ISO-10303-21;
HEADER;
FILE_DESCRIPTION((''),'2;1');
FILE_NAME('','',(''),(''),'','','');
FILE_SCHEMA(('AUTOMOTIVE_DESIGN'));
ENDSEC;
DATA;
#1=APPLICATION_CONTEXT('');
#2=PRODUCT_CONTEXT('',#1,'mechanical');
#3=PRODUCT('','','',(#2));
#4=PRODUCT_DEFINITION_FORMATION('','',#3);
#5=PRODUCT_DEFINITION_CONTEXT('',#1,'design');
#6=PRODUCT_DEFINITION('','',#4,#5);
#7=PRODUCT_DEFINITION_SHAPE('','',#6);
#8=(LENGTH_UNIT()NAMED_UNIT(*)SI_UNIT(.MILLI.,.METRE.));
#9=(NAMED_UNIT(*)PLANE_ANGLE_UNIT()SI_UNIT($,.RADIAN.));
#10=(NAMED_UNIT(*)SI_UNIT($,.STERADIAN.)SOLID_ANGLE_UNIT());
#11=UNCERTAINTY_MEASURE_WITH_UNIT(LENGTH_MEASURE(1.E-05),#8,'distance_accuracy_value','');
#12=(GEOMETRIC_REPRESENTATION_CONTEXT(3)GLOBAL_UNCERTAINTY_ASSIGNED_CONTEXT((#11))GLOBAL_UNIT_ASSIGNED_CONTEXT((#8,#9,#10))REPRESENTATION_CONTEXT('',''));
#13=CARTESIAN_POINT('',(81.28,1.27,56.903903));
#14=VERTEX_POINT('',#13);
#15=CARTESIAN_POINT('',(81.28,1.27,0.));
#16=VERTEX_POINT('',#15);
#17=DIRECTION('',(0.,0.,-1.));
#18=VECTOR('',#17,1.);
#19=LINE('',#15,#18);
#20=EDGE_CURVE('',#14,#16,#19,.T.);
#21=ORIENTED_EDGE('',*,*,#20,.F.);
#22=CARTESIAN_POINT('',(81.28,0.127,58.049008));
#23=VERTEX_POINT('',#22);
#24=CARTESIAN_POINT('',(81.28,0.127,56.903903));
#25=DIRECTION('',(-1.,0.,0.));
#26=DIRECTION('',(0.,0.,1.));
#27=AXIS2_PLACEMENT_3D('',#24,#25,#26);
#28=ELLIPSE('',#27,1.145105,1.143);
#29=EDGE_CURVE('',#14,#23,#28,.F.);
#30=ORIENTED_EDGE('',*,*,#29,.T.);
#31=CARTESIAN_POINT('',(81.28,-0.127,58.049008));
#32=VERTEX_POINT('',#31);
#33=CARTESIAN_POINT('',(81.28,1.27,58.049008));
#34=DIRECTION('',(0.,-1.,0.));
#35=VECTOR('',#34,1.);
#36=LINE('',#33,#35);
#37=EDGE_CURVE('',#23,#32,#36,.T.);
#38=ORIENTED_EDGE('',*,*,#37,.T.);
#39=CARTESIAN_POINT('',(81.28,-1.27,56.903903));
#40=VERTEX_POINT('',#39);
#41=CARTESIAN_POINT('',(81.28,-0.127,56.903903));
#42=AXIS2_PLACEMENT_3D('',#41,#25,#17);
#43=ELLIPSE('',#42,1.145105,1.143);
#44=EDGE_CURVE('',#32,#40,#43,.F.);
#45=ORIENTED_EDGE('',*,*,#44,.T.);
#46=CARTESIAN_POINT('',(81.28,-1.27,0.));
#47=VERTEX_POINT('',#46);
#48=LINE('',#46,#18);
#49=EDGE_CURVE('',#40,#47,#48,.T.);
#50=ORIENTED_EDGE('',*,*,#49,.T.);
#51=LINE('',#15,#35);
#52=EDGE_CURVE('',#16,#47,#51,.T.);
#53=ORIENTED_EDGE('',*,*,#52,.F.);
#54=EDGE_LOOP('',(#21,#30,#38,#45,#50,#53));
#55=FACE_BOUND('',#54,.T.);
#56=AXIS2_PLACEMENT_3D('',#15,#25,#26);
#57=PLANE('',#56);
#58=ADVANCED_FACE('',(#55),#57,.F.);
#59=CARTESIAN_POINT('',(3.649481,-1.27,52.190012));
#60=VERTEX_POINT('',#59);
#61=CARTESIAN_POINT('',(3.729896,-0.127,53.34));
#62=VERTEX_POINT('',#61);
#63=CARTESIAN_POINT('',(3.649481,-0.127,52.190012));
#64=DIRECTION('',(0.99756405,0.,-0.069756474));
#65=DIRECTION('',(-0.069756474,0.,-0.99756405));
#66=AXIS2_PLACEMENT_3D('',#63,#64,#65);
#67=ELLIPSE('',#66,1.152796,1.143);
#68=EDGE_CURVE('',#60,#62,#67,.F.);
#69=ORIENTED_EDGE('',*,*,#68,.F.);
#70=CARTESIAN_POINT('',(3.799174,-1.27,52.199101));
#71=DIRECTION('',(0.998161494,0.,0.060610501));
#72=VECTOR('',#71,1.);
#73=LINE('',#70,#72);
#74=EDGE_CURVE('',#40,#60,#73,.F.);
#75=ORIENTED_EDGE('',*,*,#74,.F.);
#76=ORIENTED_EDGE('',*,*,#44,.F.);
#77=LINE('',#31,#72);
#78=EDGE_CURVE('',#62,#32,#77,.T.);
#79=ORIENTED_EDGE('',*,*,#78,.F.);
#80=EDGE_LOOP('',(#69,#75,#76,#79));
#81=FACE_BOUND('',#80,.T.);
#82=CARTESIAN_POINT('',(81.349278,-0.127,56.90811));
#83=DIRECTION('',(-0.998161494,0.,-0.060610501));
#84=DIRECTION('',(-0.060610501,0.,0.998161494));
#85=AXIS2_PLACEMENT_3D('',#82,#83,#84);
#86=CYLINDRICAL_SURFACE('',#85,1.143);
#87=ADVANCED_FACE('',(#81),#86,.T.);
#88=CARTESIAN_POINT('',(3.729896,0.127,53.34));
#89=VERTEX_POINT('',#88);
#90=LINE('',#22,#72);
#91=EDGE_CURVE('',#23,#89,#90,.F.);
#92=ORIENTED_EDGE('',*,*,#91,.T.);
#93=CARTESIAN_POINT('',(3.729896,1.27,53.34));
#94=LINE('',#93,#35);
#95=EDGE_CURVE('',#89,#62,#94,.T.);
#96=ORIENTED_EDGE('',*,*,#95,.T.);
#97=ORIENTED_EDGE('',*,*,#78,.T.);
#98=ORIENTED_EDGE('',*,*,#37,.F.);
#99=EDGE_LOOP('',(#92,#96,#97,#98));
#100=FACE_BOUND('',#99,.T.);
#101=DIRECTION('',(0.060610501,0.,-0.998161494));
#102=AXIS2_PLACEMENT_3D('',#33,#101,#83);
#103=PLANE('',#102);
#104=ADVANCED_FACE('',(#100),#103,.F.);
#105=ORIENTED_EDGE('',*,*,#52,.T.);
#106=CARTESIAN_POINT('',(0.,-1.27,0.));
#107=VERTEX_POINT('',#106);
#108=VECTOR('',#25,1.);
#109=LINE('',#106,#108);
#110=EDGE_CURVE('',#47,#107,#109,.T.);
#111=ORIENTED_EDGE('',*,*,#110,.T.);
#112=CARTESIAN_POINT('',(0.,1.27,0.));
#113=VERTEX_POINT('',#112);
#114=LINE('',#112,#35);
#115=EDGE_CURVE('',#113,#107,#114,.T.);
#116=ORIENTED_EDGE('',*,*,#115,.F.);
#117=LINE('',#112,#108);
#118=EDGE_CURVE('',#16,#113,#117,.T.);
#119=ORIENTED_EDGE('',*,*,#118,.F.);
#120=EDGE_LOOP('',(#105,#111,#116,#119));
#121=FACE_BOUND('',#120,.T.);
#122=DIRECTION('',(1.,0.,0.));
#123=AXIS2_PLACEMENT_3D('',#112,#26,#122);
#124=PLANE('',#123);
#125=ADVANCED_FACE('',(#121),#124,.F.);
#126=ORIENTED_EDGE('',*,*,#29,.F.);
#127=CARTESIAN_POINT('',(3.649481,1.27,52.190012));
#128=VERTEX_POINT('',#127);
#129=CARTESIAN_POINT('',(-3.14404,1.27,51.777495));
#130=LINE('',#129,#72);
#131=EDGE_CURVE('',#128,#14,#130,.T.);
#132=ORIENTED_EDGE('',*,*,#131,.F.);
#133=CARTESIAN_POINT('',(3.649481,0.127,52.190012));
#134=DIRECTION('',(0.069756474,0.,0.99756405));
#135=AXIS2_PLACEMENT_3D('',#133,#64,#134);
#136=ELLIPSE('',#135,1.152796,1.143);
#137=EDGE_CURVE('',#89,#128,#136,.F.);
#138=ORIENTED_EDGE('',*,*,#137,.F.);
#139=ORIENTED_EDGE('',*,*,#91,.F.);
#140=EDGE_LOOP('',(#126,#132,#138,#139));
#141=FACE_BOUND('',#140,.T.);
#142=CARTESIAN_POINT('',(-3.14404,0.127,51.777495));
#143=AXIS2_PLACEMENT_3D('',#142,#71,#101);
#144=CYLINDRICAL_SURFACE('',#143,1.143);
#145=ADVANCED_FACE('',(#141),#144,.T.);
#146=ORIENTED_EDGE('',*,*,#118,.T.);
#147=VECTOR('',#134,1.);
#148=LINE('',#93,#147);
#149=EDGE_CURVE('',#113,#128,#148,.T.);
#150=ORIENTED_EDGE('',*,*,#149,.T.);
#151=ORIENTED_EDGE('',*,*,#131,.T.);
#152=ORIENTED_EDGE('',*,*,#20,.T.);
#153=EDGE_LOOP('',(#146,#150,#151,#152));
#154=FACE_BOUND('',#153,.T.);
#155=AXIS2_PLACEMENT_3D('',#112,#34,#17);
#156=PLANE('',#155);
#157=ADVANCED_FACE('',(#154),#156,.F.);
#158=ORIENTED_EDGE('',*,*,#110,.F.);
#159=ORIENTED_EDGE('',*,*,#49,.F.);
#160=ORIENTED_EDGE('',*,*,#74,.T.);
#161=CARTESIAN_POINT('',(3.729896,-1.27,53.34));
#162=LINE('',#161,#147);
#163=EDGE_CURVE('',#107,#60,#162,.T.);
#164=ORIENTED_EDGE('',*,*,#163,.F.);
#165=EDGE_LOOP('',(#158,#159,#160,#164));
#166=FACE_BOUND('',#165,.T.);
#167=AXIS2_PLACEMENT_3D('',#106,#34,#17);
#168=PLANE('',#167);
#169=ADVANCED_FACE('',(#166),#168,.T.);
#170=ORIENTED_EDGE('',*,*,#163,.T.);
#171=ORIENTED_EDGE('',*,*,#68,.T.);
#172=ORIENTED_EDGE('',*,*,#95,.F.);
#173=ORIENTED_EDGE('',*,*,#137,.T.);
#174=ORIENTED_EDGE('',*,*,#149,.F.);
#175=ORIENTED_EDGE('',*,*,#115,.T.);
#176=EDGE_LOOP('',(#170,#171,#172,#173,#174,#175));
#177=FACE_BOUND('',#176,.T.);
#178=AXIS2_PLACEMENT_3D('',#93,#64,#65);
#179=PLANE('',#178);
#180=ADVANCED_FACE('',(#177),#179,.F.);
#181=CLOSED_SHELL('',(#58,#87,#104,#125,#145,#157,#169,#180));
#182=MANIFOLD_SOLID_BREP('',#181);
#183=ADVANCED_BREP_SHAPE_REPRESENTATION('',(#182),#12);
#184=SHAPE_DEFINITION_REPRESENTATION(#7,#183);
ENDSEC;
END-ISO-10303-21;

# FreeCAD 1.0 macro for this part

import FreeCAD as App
import Part
import Sketcher
Q = App.Units.Quantity


def edges_at(feature, points):
    """Names of the edges that pass closest to the given points."""
    edges = feature.Shape.Edges
    near = lambda p: min(range(len(edges)), key=lambda i: edges[i].distToShape(Part.Vertex(*p))[0])
    return sorted({f"Edge{near(p) + 1}" for p in points})


def add_polygon(sketch, points):
    """Adds a closed chain of lines whose ends are joined by coincident constraints."""
    first, n = sketch.GeometryCount, len(points)
    for a, b in zip(points, points[1:] + points[:1]):
        sketch.addGeometry(Part.LineSegment(App.Vector(*a, 0), App.Vector(*b, 0)), False)
    for i in range(n):
        sketch.addConstraint(Sketcher.Constraint("Coincident", first + i, 2, first + (i + 1) % n, 1))

doc = App.newDocument("Part")
body = doc.addObject("PartDesign::Body", "Body")

# Sketch on XZ plane
sketch1 = body.newObject("Sketcher::SketchObject", "Sketch")
sketch1.AttachmentSupport = (doc.getObject("XZ_Plane"), [""])
sketch1.MapMode = "FlatFace"
add_polygon(sketch1, [(81, 0), (0, 0), (4, 53), (81, 58)])  # lines 0-3
sketch1.addConstraint(Sketcher.Constraint("Horizontal", 0))
sketch1.addConstraint(Sketcher.Constraint("Vertical", 3))
sketch1.addConstraint(Sketcher.Constraint("Coincident", 0, 2, -1, 1))
sketch1.addConstraint(Sketcher.Constraint("DistanceX", 0, 2, 0, 1, Q("3.2 in")))
sketch1.addConstraint(Sketcher.Constraint("Angle", 1, Q("86 deg")))
sketch1.addConstraint(Sketcher.Constraint("DistanceY", -1, 1, 1, 2, Q("2.1 in")))
sketch1.addConstraint(Sketcher.Constraint("DistanceY", 3, 2, 3, 1, Q("58.049008 mm")))
pad1 = body.newObject("PartDesign::Pad", "Pad")
pad1.Profile = sketch1
pad1.Length = Q("0.1 in")
pad1.Midplane = True
doc.recompute()

fillet = body.newObject("PartDesign::Fillet", "Fillet")
fillet.Base = (pad1, edges_at(pad1, [(42.505, -1.27, 55.695), (42.505, 1.27, 55.695)]))
fillet.Radius = Q("0.045 in")

doc.recompute()
